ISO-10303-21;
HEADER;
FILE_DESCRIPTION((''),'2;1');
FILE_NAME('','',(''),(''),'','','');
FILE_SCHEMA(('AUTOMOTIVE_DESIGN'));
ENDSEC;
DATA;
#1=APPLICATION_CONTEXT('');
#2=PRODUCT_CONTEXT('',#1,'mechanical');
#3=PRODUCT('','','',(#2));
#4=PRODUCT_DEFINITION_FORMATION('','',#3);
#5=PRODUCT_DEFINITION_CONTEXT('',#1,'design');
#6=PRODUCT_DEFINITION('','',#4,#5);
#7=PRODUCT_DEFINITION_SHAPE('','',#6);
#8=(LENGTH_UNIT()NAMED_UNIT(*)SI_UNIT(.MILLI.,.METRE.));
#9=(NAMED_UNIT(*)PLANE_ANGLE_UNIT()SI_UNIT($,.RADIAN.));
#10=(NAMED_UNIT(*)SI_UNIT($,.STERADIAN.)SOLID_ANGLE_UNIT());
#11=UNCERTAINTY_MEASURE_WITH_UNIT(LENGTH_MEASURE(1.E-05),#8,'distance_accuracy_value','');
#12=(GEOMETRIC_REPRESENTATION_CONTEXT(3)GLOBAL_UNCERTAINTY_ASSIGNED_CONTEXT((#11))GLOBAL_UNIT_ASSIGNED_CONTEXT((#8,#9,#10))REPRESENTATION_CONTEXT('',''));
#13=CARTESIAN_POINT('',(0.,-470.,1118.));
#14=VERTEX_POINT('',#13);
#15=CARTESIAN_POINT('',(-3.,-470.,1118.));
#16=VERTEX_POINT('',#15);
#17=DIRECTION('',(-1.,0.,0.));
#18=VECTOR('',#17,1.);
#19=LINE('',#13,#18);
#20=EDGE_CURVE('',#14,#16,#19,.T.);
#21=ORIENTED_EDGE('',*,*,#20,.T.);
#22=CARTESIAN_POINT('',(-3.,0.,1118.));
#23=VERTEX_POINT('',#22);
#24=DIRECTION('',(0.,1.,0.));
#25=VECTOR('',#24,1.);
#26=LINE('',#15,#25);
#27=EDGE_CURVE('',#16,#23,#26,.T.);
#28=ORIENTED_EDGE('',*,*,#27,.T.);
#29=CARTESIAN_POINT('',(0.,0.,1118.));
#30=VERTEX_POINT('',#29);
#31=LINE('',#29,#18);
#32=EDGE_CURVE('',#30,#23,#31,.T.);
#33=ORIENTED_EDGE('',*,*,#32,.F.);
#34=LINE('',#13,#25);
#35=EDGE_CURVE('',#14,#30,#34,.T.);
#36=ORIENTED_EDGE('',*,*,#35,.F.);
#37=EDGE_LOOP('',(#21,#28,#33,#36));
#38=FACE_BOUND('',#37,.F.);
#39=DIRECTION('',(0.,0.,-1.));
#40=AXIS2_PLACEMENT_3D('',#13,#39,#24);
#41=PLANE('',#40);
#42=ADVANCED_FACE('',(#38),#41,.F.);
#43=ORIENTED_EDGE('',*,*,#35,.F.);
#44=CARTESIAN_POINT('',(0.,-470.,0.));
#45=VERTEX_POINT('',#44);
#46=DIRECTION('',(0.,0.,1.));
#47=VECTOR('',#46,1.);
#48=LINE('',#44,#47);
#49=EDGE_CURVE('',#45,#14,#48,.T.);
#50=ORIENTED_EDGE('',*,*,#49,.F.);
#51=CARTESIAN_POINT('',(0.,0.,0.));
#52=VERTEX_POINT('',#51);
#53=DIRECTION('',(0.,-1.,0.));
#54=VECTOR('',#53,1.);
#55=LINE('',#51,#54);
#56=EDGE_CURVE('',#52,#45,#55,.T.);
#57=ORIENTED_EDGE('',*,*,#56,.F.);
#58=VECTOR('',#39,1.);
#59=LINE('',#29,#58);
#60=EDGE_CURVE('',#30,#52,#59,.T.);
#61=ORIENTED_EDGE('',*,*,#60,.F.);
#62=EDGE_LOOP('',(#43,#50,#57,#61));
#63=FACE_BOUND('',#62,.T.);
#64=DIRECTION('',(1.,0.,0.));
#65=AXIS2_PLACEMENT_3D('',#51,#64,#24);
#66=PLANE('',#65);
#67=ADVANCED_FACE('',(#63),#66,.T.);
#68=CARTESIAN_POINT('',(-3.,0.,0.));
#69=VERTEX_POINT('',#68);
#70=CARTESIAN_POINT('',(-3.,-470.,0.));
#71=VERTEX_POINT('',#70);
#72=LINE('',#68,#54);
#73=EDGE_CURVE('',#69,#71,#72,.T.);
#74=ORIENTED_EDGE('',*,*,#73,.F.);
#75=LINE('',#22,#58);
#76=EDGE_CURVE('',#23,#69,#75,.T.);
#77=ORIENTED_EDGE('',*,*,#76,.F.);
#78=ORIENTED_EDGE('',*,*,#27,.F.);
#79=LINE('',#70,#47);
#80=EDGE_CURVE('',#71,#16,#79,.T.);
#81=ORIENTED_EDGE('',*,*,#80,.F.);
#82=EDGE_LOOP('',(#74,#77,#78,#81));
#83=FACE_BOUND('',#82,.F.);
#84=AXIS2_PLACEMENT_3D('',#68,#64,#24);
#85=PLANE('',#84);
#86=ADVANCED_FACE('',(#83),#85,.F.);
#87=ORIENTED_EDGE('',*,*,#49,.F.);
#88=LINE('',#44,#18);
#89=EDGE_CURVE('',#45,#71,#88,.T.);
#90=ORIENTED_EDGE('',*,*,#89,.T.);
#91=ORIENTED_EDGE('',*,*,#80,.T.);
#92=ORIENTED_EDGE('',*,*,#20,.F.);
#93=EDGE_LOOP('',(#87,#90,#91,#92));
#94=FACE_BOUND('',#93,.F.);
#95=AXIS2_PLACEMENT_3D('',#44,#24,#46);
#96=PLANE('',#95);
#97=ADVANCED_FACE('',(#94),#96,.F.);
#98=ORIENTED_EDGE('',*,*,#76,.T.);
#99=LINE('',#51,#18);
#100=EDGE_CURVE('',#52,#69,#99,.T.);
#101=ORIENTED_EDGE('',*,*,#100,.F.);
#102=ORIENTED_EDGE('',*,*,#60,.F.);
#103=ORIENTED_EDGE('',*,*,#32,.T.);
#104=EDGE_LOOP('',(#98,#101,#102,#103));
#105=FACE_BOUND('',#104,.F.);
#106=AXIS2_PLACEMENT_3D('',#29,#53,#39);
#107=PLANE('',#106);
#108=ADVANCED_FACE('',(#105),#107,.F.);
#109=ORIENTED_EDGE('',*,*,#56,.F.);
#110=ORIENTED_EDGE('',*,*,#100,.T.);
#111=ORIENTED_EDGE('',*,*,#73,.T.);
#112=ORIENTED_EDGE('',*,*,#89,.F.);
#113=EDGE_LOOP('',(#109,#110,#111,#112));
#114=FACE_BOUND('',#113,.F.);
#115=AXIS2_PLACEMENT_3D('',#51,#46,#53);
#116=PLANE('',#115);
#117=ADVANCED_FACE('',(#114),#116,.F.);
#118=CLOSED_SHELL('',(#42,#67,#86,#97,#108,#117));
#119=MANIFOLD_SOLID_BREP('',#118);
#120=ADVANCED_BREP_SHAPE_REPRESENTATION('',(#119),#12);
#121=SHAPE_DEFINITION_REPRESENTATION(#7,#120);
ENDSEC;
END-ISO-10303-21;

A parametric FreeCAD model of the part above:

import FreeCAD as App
import Part
import Sketcher
from FreeCAD import Vector

doc = App.newDocument("Part")
body = doc.addObject("PartDesign::Body", "Body")

sketch1 = body.newObject("Sketcher::SketchObject", "Sketch")
sketch1.AttachmentSupport = (doc.getObject("YZ_Plane"), [""])
sketch1.MapMode = "FlatFace"
sketch1.addGeometry(Part.LineSegment(Vector(-470, 0, 0), Vector(0, 0, 0)), False)
sketch1.addGeometry(Part.LineSegment(Vector(0, 0, 0), Vector(0, 1118, 0)), False)
sketch1.addGeometry(Part.LineSegment(Vector(0, 1118, 0), Vector(-470, 1118, 0)), False)
sketch1.addGeometry(Part.LineSegment(Vector(-470, 1118, 0), Vector(-470, 0, 0)), False)
sketch1.addConstraint(Sketcher.Constraint("Coincident", 0, 2, 1, 1))
sketch1.addConstraint(Sketcher.Constraint("Coincident", 1, 2, 2, 1))
sketch1.addConstraint(Sketcher.Constraint("Coincident", 2, 2, 3, 1))
sketch1.addConstraint(Sketcher.Constraint("Coincident", 3, 2, 0, 1))
sketch1.addConstraint(Sketcher.Constraint("Horizontal", 0))
sketch1.addConstraint(Sketcher.Constraint("Vertical", 1))
sketch1.addConstraint(Sketcher.Constraint("Horizontal", 2))
sketch1.addConstraint(Sketcher.Constraint("Vertical", 3))
sketch1.addConstraint(Sketcher.Constraint("Coincident", 0, 2, -1, 1))
sketch1.addConstraint(Sketcher.Constraint("DistanceX", 0, 1, 0, 2, 470.0))
sketch1.addConstraint(Sketcher.Constraint("DistanceY", 1, 1, 1, 2, 1118.0))
pad1 = body.newObject("PartDesign::Pad", "Pad")
pad1.Profile = sketch1
pad1.Length = 3
pad1.Reversed = True

doc.recompute()
